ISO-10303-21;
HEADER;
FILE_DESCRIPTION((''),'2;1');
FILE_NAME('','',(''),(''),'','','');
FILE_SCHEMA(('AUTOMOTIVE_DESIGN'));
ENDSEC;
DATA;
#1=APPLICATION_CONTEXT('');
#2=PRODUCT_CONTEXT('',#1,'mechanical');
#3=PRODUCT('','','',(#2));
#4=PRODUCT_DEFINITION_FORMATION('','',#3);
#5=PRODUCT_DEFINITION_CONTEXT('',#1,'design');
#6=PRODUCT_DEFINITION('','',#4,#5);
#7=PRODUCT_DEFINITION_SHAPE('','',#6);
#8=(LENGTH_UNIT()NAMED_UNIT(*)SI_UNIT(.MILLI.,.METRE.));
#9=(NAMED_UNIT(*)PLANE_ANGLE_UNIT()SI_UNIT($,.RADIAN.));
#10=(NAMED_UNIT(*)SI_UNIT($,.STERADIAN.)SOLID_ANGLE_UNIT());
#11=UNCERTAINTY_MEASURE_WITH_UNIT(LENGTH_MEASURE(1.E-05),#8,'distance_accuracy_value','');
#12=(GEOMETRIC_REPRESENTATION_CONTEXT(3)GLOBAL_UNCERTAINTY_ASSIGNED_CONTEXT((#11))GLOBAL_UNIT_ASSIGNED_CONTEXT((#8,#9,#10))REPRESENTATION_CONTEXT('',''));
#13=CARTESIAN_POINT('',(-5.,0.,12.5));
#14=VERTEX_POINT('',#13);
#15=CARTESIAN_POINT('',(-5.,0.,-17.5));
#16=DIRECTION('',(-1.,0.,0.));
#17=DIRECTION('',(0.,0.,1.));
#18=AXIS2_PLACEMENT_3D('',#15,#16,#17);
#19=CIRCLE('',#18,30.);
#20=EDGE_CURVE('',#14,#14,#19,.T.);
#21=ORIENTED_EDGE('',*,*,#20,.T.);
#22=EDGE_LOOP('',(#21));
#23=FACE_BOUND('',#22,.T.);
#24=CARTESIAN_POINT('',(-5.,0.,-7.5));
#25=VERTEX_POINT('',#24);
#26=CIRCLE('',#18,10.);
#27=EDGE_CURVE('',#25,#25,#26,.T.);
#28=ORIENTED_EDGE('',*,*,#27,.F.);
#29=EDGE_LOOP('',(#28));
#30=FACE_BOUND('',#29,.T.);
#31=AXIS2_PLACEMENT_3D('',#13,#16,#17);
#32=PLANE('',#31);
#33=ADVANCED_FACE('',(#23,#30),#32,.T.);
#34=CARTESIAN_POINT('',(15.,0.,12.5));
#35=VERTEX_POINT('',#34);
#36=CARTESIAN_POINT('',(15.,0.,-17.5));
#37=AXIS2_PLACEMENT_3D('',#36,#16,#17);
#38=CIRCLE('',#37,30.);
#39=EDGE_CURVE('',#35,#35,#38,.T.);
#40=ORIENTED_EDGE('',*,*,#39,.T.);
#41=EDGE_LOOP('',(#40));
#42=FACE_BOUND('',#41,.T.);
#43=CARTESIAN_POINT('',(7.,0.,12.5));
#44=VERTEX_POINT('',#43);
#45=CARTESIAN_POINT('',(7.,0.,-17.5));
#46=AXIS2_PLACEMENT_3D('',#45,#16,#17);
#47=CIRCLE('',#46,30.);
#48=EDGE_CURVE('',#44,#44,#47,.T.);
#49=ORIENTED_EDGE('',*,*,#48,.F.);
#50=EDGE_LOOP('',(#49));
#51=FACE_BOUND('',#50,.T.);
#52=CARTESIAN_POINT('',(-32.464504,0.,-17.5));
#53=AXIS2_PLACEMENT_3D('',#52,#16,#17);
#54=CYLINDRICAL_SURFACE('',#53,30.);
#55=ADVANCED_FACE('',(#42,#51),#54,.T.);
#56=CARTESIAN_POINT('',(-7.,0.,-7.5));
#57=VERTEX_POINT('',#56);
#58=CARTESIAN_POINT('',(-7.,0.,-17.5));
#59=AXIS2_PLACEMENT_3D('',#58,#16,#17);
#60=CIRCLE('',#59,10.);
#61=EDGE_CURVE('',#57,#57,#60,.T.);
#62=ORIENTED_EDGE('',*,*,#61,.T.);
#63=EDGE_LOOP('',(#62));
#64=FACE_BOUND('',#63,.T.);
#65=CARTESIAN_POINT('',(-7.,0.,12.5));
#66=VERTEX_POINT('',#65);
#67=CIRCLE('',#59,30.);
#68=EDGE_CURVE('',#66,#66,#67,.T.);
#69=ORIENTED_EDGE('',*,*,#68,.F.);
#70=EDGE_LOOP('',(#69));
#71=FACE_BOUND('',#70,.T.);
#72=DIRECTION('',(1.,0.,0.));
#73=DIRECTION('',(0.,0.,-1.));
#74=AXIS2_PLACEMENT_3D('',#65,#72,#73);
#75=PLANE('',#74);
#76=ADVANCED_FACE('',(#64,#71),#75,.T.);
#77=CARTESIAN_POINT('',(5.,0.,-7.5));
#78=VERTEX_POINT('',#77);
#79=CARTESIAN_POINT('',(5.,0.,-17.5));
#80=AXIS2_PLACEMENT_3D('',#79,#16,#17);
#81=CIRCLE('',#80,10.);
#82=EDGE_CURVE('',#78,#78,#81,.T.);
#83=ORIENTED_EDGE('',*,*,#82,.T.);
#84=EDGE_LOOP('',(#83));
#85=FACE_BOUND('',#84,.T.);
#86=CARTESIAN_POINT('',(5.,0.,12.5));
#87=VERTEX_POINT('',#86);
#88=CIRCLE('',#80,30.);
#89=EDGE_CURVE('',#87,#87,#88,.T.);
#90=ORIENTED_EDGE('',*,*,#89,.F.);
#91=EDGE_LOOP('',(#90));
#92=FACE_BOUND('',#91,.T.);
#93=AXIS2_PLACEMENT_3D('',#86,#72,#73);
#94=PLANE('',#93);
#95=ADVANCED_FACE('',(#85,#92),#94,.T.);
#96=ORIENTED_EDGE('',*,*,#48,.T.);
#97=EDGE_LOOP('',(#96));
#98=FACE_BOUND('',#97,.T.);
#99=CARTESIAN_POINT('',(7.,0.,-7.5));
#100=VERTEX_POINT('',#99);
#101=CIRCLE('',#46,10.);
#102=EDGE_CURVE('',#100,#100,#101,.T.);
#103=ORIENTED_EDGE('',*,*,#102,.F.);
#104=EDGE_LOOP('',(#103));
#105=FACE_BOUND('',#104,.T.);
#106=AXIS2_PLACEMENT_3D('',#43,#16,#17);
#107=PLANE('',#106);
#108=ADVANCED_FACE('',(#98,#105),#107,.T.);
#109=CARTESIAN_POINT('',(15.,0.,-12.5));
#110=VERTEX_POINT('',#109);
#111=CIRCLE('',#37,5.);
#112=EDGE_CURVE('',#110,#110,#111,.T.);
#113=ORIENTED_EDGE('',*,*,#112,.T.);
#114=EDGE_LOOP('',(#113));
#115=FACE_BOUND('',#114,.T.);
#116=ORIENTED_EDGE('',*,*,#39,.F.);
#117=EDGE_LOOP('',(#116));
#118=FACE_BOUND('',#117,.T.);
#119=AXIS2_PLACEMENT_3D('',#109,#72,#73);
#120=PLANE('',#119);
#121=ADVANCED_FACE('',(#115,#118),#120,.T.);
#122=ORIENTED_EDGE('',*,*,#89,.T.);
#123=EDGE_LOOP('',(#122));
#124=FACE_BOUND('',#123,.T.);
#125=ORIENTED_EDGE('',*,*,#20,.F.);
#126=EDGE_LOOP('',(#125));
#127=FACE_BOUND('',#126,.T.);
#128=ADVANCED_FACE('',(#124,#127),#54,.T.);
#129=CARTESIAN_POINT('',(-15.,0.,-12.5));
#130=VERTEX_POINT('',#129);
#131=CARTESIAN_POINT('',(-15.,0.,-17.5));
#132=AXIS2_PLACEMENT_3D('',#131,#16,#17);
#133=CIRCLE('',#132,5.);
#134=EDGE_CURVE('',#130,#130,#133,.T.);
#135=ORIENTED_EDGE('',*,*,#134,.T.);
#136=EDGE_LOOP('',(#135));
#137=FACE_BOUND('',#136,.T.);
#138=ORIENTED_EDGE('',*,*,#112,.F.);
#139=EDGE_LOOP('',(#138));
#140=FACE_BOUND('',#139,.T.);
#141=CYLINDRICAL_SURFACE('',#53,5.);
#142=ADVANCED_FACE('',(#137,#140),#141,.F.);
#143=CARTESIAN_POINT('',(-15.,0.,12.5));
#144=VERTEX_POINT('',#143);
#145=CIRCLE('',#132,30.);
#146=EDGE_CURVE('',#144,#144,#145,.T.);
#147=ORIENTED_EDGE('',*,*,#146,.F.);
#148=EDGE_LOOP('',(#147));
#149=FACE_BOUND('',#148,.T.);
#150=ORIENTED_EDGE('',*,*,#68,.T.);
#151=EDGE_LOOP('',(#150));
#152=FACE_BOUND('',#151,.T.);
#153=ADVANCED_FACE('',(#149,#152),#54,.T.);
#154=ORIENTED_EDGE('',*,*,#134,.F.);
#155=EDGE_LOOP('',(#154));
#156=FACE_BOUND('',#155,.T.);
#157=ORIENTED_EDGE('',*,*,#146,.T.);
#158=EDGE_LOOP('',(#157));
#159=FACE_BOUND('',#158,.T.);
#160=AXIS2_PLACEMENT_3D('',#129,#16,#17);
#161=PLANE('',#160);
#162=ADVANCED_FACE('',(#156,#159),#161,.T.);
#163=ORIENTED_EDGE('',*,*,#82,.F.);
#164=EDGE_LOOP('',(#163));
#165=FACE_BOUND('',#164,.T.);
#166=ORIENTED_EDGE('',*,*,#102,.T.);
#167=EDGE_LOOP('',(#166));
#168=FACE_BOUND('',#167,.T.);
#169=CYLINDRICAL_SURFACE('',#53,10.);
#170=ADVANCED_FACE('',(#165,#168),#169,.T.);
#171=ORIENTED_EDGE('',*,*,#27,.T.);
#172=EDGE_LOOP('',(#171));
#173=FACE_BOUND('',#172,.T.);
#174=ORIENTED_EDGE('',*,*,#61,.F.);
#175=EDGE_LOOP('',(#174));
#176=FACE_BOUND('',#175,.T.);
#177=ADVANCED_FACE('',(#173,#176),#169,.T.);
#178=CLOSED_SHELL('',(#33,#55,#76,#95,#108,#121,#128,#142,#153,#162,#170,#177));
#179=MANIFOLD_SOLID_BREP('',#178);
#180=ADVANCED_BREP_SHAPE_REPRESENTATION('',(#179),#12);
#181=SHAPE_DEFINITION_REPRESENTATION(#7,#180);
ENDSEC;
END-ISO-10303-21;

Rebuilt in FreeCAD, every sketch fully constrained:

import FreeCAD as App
import Part
import Sketcher
Q = App.Units.Quantity


def add_polygon(sketch, points):
    """Adds a closed chain of lines whose ends are joined by coincident constraints."""
    first, n = sketch.GeometryCount, len(points)
    for a, b in zip(points, points[1:] + points[:1]):
        sketch.addGeometry(Part.LineSegment(App.Vector(*a, 0), App.Vector(*b, 0)), False)
    for i in range(n):
        sketch.addConstraint(Sketcher.Constraint("Coincident", first + i, 2, first + (i + 1) % n, 1))

doc = App.newDocument("Part")
body = doc.addObject("PartDesign::Body", "Body")

sketch1 = body.newObject("Sketcher::SketchObject", "Sketch")
sketch1.AttachmentSupport = (doc.getObject("XZ_Plane"), [""])
sketch1.MapMode = "FlatFace"
add_polygon(sketch1, [(-5, 12.5), (5, 12.5), (5, -7.5), (7, -7.5), (7, 12.5), (15, 12.5), (15, -12.5), (-15, -12.5), (-15, 12.5), (-7, 12.5), (-7, -7.5), (-5, -7.5)])
sketch1.addGeometry(Part.LineSegment(App.Vector(-15, -17.5, 0), App.Vector(15, -17.5, 0)), True)
sketch1.addConstraint([
    Sketcher.Constraint("Horizontal", 0),
    Sketcher.Constraint("Vertical", 1),
    Sketcher.Constraint("Horizontal", 2),
    Sketcher.Constraint("Vertical", 3),
    Sketcher.Constraint("Horizontal", 4),
    Sketcher.Constraint("Vertical", 5),
    Sketcher.Constraint("Horizontal", 6),
    Sketcher.Constraint("Vertical", 7),
    Sketcher.Constraint("Horizontal", 8),
    Sketcher.Constraint("Vertical", 9),
    Sketcher.Constraint("Horizontal", 10),
    Sketcher.Constraint("Vertical", 11),
    Sketcher.Constraint("Horizontal", 12),
    Sketcher.Constraint("Symmetric", 4, 2, 6, 2, -1, 1),
    Sketcher.Constraint("Symmetric", 3, 2, 8, 2, -2),
    Sketcher.Constraint("Symmetric", 1, 2, 10, 2, -2),
    Sketcher.Constraint("Horizontal", 0, 2, 3, 2),
    Sketcher.Constraint("Vertical", 7, 2, 12, 1),
    Sketcher.Constraint("Vertical", 5, 2, 12, 2),
    Sketcher.Constraint("DistanceX", 0, 1, 0, 2, Q("10 mm")),
    Sketcher.Constraint("DistanceX", 2, 1, 2, 2, Q("2 mm")),
    Sketcher.Constraint("DistanceX", 4, 1, 4, 2, Q("8 mm")),
    Sketcher.Constraint("DistanceY", 1, 2, 1, 1, Q("20 mm")),
    Sketcher.Constraint("DistanceY", 5, 2, 5, 1, Q("25 mm")),
    Sketcher.Constraint("DistanceY", 12, 1, 6, 2, Q("5 mm")),
])
revolution = body.newObject("PartDesign::Revolution", "Revolution")
revolution.Profile = sketch1
revolution.ReferenceAxis = (sketch1, ["Axis0"])
revolution.Angle = 360

doc.recompute()
